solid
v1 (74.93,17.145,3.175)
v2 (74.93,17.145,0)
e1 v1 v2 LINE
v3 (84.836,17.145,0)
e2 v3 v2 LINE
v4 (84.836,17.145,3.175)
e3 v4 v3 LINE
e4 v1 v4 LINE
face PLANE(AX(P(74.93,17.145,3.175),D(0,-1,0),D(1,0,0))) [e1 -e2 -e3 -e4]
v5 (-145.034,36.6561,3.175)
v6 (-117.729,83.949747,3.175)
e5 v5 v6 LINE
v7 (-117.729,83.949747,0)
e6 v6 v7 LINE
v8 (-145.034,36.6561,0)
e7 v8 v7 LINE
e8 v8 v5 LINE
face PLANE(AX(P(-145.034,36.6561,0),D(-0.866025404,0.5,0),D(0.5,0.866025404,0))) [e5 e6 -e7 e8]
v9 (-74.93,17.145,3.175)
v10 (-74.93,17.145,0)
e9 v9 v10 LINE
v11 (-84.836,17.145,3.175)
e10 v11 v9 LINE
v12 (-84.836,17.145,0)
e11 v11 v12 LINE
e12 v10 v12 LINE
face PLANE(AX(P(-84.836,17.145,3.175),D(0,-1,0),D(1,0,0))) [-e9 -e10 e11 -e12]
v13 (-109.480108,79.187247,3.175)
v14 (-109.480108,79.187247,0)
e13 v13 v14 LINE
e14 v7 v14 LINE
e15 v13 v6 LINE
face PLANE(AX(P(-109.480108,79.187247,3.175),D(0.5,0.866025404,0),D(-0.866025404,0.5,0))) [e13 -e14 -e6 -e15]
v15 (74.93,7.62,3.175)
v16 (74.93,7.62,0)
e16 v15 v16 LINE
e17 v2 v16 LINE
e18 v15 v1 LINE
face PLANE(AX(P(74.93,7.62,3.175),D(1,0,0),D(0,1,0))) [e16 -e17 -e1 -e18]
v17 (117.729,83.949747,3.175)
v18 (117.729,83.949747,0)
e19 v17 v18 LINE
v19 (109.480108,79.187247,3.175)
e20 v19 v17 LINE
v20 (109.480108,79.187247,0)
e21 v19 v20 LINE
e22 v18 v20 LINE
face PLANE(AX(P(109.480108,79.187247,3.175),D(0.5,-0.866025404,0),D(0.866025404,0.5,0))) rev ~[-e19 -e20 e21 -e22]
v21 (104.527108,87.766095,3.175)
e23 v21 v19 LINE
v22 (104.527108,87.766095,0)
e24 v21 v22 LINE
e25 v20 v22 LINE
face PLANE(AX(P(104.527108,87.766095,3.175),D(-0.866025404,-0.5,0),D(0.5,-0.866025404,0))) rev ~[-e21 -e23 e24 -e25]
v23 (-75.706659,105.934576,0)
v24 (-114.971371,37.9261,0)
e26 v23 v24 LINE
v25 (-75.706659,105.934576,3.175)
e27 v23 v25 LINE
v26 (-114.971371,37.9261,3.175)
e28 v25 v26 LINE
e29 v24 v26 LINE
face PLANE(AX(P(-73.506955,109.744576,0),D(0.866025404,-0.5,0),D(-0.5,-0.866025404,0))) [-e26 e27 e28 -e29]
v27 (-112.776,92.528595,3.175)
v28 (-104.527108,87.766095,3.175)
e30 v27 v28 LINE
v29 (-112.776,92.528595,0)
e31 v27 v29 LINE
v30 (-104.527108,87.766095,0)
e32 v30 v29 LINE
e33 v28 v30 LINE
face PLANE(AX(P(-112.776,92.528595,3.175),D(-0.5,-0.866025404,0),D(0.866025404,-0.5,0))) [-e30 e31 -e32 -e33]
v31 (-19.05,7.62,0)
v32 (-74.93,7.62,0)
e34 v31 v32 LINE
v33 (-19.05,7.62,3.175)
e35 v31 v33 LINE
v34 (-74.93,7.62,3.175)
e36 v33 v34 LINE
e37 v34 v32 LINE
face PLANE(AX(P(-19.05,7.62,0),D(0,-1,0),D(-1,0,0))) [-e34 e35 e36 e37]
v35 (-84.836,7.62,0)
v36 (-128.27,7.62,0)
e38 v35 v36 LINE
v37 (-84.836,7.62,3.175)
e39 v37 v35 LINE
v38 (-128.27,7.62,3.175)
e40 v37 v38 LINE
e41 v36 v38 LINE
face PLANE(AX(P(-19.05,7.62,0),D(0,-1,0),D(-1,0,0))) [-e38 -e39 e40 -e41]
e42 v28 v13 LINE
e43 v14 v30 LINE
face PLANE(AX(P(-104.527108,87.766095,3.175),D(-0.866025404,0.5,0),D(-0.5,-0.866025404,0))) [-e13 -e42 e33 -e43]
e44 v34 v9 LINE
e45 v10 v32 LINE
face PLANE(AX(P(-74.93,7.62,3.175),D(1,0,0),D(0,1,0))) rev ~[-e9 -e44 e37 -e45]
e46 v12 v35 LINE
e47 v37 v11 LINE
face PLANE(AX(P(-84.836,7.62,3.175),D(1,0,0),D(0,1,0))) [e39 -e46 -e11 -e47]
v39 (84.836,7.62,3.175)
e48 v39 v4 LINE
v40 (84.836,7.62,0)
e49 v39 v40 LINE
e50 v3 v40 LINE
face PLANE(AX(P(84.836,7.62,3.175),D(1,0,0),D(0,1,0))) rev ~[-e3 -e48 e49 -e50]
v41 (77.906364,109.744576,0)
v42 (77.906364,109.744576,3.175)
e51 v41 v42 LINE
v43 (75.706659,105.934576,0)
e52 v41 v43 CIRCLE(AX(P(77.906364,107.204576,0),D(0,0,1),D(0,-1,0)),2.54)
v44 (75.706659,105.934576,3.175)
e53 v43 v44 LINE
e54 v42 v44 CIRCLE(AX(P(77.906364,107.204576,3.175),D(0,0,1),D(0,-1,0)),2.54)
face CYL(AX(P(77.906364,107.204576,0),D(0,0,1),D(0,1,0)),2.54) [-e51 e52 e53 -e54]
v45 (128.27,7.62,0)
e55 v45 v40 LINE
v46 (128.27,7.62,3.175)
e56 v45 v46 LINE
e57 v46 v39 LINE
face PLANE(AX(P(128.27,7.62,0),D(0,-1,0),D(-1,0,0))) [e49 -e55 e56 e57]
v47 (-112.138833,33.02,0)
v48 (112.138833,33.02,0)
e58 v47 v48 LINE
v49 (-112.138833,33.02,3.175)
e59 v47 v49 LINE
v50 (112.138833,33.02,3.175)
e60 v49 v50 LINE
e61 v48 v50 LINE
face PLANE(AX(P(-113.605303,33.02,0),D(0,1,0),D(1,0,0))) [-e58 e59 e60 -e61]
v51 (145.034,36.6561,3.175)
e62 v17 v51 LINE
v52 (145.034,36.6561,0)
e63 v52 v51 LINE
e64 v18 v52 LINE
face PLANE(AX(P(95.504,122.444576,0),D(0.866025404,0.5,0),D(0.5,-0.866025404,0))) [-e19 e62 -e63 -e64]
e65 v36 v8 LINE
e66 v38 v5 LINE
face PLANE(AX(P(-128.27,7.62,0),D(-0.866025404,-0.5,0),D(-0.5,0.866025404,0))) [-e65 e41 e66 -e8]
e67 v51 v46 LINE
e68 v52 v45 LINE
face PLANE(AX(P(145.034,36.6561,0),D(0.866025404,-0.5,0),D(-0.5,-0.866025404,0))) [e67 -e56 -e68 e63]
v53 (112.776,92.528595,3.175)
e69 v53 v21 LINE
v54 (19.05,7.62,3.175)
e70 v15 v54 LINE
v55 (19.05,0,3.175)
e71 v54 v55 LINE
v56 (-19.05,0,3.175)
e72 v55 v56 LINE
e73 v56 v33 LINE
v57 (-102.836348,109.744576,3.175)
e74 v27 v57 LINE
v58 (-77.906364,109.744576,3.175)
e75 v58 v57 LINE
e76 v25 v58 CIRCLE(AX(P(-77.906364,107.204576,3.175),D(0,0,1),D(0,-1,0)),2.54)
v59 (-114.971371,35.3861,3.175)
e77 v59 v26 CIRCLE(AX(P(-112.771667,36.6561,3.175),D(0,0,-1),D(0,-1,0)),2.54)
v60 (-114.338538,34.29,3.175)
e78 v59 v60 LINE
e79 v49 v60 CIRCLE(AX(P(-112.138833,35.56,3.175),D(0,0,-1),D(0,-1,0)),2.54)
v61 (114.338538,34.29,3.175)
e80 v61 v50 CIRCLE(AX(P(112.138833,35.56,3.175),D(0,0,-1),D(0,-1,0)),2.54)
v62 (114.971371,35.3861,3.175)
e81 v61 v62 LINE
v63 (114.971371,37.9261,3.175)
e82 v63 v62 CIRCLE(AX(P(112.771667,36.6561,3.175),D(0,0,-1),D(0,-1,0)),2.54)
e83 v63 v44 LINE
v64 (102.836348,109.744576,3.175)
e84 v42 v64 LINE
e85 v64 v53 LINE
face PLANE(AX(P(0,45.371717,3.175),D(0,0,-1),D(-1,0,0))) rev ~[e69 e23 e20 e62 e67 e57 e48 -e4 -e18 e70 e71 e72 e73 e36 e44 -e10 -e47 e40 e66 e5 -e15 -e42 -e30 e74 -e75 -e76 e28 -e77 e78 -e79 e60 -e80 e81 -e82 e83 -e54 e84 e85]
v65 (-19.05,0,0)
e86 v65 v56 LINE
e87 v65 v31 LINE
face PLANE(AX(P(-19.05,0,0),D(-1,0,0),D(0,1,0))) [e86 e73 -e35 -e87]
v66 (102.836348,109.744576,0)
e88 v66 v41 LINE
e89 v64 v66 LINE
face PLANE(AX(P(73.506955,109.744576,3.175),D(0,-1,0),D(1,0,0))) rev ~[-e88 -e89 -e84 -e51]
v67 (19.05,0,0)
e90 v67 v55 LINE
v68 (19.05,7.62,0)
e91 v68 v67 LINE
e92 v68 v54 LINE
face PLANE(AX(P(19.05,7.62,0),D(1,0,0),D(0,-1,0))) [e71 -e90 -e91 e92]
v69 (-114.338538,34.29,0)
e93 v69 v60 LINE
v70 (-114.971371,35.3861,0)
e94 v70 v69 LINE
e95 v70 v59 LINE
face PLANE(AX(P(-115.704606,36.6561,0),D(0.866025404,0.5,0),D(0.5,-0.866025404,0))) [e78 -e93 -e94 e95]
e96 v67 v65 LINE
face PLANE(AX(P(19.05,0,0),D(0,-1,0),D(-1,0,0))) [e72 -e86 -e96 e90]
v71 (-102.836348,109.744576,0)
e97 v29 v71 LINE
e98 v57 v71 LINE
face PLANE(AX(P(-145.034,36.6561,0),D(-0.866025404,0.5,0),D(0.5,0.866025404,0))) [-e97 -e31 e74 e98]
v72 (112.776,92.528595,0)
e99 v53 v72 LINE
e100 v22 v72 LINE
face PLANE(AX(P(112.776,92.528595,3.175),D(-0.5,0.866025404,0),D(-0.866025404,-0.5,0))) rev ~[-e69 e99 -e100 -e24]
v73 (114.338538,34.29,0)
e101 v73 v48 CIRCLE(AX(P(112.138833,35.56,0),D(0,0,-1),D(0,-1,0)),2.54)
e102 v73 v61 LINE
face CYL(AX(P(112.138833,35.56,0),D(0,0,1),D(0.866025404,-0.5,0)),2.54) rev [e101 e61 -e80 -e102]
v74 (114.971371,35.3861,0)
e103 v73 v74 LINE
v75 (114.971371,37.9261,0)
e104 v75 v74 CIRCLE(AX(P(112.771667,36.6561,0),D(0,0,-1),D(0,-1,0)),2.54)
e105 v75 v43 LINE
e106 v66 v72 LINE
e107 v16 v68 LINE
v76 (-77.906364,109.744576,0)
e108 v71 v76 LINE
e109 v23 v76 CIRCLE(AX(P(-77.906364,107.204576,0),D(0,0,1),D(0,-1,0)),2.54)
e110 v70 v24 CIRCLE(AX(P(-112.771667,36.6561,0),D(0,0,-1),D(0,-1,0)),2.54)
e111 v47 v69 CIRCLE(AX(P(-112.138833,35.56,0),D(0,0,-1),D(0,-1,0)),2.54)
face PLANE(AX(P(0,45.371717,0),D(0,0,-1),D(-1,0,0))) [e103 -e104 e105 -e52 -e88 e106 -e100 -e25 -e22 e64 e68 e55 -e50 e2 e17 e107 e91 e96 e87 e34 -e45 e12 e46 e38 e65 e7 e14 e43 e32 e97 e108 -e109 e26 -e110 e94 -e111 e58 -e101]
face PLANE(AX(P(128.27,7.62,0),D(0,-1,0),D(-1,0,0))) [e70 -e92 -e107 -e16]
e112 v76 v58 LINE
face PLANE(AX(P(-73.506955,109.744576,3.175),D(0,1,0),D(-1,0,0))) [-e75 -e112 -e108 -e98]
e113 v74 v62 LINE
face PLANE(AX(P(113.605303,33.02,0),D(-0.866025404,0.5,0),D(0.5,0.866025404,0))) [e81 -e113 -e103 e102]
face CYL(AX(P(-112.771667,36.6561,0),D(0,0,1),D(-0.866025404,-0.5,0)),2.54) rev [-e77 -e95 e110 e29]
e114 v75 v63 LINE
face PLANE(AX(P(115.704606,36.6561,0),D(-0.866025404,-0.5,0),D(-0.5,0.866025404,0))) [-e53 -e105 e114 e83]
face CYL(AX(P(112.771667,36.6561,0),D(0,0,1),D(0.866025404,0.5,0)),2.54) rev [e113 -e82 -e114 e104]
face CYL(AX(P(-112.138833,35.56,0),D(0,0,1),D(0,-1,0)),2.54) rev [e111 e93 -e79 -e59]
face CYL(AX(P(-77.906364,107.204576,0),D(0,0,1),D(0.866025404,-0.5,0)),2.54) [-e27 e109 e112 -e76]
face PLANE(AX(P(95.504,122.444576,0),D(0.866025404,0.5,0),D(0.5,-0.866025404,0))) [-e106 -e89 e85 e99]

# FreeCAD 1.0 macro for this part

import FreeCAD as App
import Part
import Sketcher
from FreeCAD import Vector
Q = App.Units.Quantity


def edges_at(feature, points):
    """Names of the edges that pass closest to the given points."""
    edges = feature.Shape.Edges
    near = lambda p: min(range(len(edges)), key=lambda i: edges[i].distToShape(Part.Vertex(*p))[0])
    return sorted({f"Edge{near(p) + 1}" for p in points})


def add_polygon(sketch, points):
    """Adds a closed chain of lines whose ends are joined by coincident constraints."""
    first, n = sketch.GeometryCount, len(points)
    for a, b in zip(points, points[1:] + points[:1]):
        sketch.addGeometry(Part.LineSegment(App.Vector(*a, 0), App.Vector(*b, 0)), False)
    for i in range(n):
        sketch.addConstraint(Sketcher.Constraint("Coincident", first + i, 2, first + (i + 1) % n, 1))

doc = App.newDocument("Part")
body = doc.addObject("PartDesign::Body", "Body")

sketch1 = doc.addObject("Sketcher::SketchObject", "Sketch")
body.addObject(sketch1)
sketch1.AttachmentSupport = (doc.XY_Plane, [""])
sketch1.MapMode = "FlatFace"
add_polygon(sketch1, [(-19.1, 0), (19.1, 0), (19.1, 7.6), (128.3, 7.6), (145, 36.7), (95.5, 122.4), (73.5, 109.7), (115.7, 36.7), (113.6, 33), (-113.6, 33), (-115.7, 36.7), (-73.5, 109.7), (-95.5, 122.4), (-145, 36.7), (-128.3, 7.6), (-19.1, 7.6)])
sketch1.addConstraint([
    Sketcher.Constraint("Horizontal", 0),
    Sketcher.Constraint("Vertical", 1),
    Sketcher.Constraint("Horizontal", 2),
    Sketcher.Constraint("Horizontal", 8),
    Sketcher.Constraint("Horizontal", 14),
    Sketcher.Constraint("Vertical", 15),
    Sketcher.Constraint("Symmetric", 0, 2, 15, 2, -1, 1),
    Sketcher.Constraint("Symmetric", 6, 2, 9, 2, -2),
    Sketcher.Constraint("Symmetric", 5, 2, 10, 2, -2),
    Sketcher.Constraint("Symmetric", 4, 2, 11, 2, -2),
    Sketcher.Constraint("Symmetric", 3, 2, 12, 2, -2),
    Sketcher.Constraint("Symmetric", 2, 2, 13, 2, -2),
    Sketcher.Constraint("Perpendicular", 4, 5),
    Sketcher.Constraint("Perpendicular", 5, 6),
    Sketcher.Constraint("Parallel", 3, 7),
    Sketcher.Constraint("Parallel", 6, 9),
    Sketcher.Constraint("Parallel", 7, 10),
    Sketcher.Constraint("Horizontal", 3, 2, 6, 2),
    Sketcher.Constraint("Distance", 5, Q("1 in")),
    Sketcher.Constraint("DistanceX", 0, 1, 0, 2, Q("1.5 in")),
    Sketcher.Constraint("DistanceX", 2, 1, 2, 2, Q("4.3 in")),
    Sketcher.Constraint("DistanceY", 1, 1, 1, 2, Q("0.3 in")),
    Sketcher.Constraint("Angle", 3, Q("60 deg")),
    Sketcher.Constraint("DistanceY", 2, 2, 7, 2, Q("1 in")),
    Sketcher.Constraint("Distance", 4, Q("3.9 in")),
    Sketcher.Constraint("Distance", 3, Q("1.32 in")),
])
pad1 = doc.addObject("PartDesign::Pad", "Pad")
body.addObject(pad1)
pad1.Profile = sketch1
pad1.Length = Q("0.125 in")

sketch2 = doc.addObject("Sketcher::SketchObject", "Sketch001")
body.addObject(sketch2)
sketch2.AttachmentSupport = (doc.XY_Plane, [""])
sketch2.MapMode = "FlatFace"
sketch2.AttachmentOffset = App.Placement(Vector(0, 0, 0.125 * 25.4), App.Rotation())
add_polygon(sketch2, [(-85, 17), (-85, 8), (-75, 8), (-75, 17)])
add_polygon(sketch2, [(-105, 88), (-113, 93), (-118, 84), (-109, 79)])
add_polygon(sketch2, [(-103, 110), (-74, 110), (-96, 122)])
add_polygon(sketch2, [(96, 122), (74, 110), (103, 110)])
add_polygon(sketch2, [(118, 84), (113, 93), (105, 88), (109, 79)])
add_polygon(sketch2, [(75, 17), (75, 8), (85, 8), (85, 17)])
sketch2.addConstraint([
    Sketcher.Constraint("Vertical", 0),
    Sketcher.Constraint("Horizontal", 1),
    Sketcher.Constraint("Vertical", 2),
    Sketcher.Constraint("Horizontal", 3),
    Sketcher.Constraint("Horizontal", 8),
    Sketcher.Constraint("Horizontal", 12),
    Sketcher.Constraint("Vertical", 18),
    Sketcher.Constraint("Horizontal", 19),
    Sketcher.Constraint("Vertical", 20),
    Sketcher.Constraint("Horizontal", 21),
    Sketcher.Constraint("Symmetric", 8, 2, 11, 2, -2),
    Sketcher.Constraint("Symmetric", 9, 2, 13, 2, -2),
    Sketcher.Constraint("Symmetric", 4, 2, 14, 2, -2),
    Sketcher.Constraint("Symmetric", 7, 2, 15, 2, -2),
    Sketcher.Constraint("Symmetric", 6, 2, 16, 2, -2),
    Sketcher.Constraint("Symmetric", 5, 2, 17, 2, -2),
    Sketcher.Constraint("Symmetric", 1, 2, 18, 2, -2),
    Sketcher.Constraint("Symmetric", 3, 2, 20, 2, -2),
    Sketcher.Constraint("Perpendicular", 4, 5),
    Sketcher.Constraint("Perpendicular", 5, 6),
    Sketcher.Constraint("Perpendicular", 6, 7),
    Sketcher.Constraint("Perpendicular", 7, 9),
    Sketcher.Constraint("Perpendicular", 9, 10),
    Sketcher.Constraint("Perpendicular", 11, 13),
    Sketcher.Constraint("Distance", 9, Q("1 in")),
    Sketcher.Constraint("Angle", 4, Q("150 deg")),
    Sketcher.Constraint("DistanceX", 1, 1, 1, 2, Q("0.39 in")),
    Sketcher.Constraint("DistanceY", -1, 1, 0, 2, Q("0.3 in")),
    Sketcher.Constraint("DistanceX", 4, 2, 3, 2, Q("1.1 in")),
    Sketcher.Constraint("Distance", 5, Q("0.39 in")),
    Sketcher.Constraint("DistanceY", 0, 2, 0, 1, Q("0.375 in")),
    Sketcher.Constraint("DistanceX", 0, 2, -1, 1, Q("3.34 in")),
    Sketcher.Constraint("DistanceX", 9, 2, -1, 1, Q("3.76 in")),
    Sketcher.Constraint("Distance", 4, Q("0.375 in")),
    Sketcher.Constraint("DistanceY", 7, 2, 8, 2, Q("21.978482 mm")),
    Sketcher.Constraint("DistanceY", -1, 1, 4, 2, Q("92.528595 mm")),
])
pocket1 = doc.addObject("PartDesign::Pocket", "Pocket")
body.addObject(pocket1)
pocket1.Profile = sketch2
pocket1.Type = "ThroughAll"
doc.recompute()

fillet = doc.addObject("PartDesign::Fillet", "Fillet")
body.addObject(fillet)
fillet.Base = (pocket1, edges_at(pocket1, [
    (-113.605, 33.02, 1.587),
    (113.605, 33.02, 1.587),
    (115.705, 36.656, 1.587),
    (73.507, 109.745, 1.587),
    (-73.507, 109.745, 1.587),
    (-115.705, 36.656, 1.587),
]))
fillet.Radius = Q("0.1 in")

doc.recompute()
